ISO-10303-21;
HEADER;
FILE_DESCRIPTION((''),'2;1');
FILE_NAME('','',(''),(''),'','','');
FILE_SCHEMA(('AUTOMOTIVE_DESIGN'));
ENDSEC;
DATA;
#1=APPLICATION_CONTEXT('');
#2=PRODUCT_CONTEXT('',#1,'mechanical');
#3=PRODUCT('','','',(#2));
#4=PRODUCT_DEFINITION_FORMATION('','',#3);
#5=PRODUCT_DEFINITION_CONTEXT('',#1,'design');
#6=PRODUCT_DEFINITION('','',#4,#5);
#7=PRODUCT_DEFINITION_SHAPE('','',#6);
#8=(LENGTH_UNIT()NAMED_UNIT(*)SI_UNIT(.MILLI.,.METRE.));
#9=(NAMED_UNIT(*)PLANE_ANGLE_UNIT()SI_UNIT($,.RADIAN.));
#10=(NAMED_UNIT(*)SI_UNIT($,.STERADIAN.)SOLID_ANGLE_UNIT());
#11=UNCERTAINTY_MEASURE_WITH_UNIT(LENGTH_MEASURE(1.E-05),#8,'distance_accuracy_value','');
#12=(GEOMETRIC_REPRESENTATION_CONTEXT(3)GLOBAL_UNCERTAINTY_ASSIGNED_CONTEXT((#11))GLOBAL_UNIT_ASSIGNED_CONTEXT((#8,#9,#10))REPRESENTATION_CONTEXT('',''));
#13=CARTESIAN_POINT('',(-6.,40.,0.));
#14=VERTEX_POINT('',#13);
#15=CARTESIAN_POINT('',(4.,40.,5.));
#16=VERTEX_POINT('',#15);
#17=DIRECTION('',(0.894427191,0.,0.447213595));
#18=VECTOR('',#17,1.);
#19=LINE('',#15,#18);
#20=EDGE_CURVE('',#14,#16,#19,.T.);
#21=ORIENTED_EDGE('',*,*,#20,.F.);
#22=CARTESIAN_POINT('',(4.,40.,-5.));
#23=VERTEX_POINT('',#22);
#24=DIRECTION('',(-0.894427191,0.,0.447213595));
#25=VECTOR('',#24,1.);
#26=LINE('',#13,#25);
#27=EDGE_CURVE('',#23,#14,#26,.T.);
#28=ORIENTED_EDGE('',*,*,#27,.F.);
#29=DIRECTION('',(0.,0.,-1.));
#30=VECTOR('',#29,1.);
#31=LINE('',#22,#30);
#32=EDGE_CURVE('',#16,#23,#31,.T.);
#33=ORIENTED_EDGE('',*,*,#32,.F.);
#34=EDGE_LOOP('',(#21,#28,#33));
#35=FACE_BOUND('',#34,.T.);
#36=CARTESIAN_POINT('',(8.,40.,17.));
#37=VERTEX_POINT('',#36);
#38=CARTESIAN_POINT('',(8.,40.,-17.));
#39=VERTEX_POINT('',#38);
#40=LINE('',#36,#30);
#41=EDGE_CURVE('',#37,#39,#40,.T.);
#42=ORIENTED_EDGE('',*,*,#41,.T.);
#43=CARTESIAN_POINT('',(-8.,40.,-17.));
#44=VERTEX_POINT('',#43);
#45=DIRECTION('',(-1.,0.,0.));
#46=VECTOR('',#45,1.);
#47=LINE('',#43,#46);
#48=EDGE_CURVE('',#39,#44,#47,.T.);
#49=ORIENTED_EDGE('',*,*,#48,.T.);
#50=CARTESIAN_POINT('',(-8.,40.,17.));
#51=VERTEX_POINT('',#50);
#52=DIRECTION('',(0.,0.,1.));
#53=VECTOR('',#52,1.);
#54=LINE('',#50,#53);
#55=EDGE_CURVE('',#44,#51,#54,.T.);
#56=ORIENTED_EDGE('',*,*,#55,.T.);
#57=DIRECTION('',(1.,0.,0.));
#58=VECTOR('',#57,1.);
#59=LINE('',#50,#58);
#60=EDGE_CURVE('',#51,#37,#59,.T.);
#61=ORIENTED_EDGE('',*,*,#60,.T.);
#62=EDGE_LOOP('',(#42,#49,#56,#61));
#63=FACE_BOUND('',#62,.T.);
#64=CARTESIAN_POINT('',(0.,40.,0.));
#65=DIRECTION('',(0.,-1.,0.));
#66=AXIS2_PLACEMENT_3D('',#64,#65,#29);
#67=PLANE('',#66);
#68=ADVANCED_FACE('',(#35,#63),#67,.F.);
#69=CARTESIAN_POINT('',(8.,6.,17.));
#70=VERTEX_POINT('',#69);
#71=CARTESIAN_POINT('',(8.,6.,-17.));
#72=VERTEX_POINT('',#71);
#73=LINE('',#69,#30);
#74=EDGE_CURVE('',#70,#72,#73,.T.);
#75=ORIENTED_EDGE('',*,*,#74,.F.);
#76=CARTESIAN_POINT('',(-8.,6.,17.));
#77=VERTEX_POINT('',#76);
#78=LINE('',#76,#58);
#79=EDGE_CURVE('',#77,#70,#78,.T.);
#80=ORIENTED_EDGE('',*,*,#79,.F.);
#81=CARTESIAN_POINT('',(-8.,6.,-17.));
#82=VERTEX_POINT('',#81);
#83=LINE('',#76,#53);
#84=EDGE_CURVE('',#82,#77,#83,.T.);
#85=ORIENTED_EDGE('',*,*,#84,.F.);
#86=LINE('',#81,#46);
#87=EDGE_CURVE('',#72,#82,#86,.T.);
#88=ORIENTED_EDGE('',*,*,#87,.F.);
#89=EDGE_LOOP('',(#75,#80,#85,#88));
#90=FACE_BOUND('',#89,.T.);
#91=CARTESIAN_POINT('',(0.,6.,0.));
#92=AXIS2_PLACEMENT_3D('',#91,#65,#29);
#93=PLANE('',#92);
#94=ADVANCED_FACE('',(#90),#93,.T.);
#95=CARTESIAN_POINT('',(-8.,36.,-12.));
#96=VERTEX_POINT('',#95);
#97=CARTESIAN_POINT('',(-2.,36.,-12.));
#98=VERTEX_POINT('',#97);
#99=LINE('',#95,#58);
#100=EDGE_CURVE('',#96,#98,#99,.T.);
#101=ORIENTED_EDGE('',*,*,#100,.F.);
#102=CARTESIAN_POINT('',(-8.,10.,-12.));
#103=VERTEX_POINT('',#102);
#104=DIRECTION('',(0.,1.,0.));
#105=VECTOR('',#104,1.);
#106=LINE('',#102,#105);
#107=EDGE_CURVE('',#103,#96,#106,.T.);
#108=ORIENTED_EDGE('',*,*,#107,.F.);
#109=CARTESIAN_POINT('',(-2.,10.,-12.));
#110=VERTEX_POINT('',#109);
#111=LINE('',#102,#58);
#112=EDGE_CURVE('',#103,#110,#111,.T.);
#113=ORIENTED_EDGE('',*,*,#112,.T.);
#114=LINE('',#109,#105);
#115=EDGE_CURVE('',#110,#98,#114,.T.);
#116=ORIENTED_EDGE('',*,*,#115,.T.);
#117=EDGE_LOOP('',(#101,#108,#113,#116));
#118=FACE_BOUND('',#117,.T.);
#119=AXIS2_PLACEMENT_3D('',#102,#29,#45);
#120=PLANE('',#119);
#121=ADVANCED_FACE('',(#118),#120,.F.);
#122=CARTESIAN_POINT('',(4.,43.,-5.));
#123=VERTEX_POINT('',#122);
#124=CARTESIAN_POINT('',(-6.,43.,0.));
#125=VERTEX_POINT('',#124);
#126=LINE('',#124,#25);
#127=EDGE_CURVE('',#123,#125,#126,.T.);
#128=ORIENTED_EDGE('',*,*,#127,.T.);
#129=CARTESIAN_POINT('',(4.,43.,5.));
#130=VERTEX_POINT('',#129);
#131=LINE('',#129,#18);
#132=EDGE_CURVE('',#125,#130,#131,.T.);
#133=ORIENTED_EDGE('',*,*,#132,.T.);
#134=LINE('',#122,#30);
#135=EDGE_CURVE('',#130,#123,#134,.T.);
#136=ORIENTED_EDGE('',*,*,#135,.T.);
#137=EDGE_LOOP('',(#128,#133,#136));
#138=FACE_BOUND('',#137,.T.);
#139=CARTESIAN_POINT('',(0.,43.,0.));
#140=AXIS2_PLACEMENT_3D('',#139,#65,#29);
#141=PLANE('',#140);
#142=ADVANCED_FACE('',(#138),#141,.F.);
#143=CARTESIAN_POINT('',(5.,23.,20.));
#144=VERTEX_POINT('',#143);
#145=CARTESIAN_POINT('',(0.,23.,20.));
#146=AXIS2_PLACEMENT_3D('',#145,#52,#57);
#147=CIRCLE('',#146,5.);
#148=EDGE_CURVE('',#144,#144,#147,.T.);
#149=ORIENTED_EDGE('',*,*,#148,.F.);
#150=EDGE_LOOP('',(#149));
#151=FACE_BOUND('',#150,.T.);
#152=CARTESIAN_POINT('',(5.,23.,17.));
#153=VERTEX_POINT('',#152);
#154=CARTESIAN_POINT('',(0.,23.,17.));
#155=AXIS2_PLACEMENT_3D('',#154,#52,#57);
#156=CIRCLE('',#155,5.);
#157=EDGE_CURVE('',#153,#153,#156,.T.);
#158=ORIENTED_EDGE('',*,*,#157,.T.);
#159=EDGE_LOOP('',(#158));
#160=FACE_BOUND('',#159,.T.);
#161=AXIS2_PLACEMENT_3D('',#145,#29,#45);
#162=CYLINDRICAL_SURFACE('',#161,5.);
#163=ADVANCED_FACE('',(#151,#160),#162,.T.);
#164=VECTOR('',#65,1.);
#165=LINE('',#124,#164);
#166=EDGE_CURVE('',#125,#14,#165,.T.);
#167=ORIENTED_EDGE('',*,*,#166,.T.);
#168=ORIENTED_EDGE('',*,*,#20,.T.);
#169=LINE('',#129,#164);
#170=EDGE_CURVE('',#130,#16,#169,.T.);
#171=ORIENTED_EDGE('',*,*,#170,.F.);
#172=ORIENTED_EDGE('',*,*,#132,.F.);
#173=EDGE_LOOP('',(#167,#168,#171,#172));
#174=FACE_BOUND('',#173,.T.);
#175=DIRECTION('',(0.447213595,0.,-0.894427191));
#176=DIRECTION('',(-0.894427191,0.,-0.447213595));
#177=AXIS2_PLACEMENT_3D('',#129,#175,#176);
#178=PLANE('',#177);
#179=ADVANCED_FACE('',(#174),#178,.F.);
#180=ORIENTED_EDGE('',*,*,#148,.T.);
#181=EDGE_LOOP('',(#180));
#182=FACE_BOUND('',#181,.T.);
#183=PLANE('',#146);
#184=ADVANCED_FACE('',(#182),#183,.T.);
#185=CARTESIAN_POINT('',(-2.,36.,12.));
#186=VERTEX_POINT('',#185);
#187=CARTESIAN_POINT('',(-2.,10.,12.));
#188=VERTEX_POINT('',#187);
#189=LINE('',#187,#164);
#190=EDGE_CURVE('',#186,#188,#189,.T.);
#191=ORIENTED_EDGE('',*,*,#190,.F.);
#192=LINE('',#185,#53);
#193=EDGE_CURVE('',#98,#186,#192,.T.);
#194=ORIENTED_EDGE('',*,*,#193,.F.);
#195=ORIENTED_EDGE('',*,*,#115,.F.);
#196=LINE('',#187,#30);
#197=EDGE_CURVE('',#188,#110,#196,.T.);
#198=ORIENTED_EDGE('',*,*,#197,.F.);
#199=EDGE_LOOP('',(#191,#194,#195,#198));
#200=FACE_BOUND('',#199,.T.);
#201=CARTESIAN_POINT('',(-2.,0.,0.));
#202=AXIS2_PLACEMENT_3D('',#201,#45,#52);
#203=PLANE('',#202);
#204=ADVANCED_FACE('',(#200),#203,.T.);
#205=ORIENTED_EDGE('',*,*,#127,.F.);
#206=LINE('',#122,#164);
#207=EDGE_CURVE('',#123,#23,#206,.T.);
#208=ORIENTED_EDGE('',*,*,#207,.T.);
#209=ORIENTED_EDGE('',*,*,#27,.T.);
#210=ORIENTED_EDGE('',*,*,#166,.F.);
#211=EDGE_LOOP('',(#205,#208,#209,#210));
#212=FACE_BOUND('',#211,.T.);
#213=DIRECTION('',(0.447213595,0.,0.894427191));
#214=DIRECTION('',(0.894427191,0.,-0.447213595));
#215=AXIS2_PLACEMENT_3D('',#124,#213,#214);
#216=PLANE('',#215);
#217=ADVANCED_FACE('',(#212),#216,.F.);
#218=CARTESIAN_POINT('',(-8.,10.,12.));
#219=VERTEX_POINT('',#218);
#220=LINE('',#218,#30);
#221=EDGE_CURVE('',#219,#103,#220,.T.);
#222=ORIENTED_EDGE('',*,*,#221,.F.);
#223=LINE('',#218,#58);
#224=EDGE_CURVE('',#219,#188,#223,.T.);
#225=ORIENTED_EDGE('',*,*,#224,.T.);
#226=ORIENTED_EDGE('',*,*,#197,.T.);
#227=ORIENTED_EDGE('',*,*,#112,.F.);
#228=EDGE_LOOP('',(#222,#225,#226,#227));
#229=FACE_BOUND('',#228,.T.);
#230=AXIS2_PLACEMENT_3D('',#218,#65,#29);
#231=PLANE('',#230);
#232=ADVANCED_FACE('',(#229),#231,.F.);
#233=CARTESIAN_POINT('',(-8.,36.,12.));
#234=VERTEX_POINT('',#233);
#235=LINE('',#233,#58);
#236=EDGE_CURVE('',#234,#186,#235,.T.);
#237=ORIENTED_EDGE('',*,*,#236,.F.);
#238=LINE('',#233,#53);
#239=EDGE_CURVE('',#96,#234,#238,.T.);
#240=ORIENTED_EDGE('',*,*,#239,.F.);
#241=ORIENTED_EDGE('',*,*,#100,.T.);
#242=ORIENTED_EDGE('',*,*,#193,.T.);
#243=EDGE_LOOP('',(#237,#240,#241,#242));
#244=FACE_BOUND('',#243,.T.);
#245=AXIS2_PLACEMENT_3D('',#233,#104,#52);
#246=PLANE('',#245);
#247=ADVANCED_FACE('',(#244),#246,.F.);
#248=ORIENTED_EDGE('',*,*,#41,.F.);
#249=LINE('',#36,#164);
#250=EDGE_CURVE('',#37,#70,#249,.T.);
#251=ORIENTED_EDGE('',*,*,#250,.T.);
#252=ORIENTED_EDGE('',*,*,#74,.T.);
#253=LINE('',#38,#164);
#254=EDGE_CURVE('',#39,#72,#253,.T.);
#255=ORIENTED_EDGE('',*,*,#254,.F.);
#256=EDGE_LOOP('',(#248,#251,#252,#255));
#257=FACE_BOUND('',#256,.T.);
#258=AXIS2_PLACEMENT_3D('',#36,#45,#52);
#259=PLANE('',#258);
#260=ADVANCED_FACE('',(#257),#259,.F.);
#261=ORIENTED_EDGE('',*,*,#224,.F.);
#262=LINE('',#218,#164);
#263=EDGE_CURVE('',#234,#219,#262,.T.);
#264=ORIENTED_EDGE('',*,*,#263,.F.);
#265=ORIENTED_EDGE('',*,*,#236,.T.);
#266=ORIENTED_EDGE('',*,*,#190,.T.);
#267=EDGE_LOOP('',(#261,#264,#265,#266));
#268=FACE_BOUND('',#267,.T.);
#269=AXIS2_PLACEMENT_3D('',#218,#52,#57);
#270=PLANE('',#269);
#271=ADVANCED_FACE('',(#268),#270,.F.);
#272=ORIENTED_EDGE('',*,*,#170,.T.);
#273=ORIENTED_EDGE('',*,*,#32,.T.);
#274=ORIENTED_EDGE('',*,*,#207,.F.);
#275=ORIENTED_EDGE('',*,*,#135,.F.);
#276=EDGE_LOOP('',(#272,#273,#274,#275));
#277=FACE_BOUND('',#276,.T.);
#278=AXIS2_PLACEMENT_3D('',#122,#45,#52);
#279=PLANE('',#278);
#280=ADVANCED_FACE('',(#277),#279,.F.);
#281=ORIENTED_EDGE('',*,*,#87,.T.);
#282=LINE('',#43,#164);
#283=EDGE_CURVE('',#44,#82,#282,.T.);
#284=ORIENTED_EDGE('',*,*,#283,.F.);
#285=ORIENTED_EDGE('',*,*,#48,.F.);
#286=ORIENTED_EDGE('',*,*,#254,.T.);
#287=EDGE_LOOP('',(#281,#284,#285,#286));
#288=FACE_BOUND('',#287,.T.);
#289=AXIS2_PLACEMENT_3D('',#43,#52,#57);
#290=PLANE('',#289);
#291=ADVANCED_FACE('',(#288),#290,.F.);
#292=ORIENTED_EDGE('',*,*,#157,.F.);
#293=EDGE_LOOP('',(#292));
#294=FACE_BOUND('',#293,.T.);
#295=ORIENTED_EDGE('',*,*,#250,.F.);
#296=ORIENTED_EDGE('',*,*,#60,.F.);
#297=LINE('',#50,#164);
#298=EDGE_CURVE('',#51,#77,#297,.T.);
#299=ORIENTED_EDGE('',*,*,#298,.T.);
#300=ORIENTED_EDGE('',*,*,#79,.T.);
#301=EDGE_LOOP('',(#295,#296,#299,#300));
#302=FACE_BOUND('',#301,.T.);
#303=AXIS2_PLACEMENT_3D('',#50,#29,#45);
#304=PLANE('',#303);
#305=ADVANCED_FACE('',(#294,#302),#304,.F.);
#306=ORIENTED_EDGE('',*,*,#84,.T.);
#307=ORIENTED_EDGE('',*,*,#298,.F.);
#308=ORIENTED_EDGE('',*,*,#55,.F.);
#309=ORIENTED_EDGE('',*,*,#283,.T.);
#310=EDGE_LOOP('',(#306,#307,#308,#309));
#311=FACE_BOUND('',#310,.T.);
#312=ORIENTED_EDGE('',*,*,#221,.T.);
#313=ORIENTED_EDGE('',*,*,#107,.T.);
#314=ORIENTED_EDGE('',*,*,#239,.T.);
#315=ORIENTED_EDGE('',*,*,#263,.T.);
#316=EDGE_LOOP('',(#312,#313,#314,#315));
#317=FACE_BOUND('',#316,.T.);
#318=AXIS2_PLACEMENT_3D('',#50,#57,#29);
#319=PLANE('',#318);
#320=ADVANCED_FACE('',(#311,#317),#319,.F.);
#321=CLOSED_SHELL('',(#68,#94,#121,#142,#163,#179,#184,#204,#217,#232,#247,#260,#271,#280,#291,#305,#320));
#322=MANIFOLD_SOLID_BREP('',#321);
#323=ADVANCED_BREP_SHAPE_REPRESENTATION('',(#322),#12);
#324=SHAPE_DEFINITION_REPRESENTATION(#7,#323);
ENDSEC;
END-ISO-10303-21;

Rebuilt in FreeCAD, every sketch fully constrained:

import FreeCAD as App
import Part
import Sketcher

V = App.Vector
Q = App.Units.Quantity

doc = App.newDocument("Part")
params = doc.addObject("Spreadsheet::Sheet", "Params")
for row, (alias, value) in enumerate([
    ("sketch1_width", "16 mm"),
    ("sketch1_height", "34 mm"),
    ("pad1_length", "34 mm"),
    ("sketch2_width", "26 mm"),
    ("sketch2_height", "24 mm"),
    ("pocket1_length", "6 mm"),
    ("sketch3_diameter", "10 mm"),
    ("pad2_length", "3 mm"),
    ("sketch4_height", "10 mm"),
    ("pad3_length", "3 mm"),
], start=1):
    params.set(f"A{row}", alias)
    params.set(f"B{row}", "=" + value)
    params.setAlias(f"B{row}", alias)

body = doc.addObject("PartDesign::Body", "Body")

# Sketch on XZ plane
sketch1 = body.newObject("Sketcher::SketchObject", "Sketch")
sketch1.AttachmentSupport = (doc.getObject("XZ_Plane"), [""])
sketch1.MapMode = "FlatFace"
sketch1.AttachmentOffset = App.Placement(V(0, 0, -23), App.Rotation())
sketch1.addGeometry([
    Part.LineSegment(V(-8, -17, 0), V(-8, 17, 0)),
    Part.LineSegment(V(-8, 17, 0), V(8, 17, 0)),
    Part.LineSegment(V(8, 17, 0), V(8, -17, 0)),
    Part.LineSegment(V(8, -17, 0), V(-8, -17, 0)),
], False)
sketch1.addConstraint([
    Sketcher.Constraint("Coincident", 0, 2, 1, 1),
    Sketcher.Constraint("Coincident", 1, 2, 2, 1),
    Sketcher.Constraint("Coincident", 2, 2, 3, 1),
    Sketcher.Constraint("Coincident", 3, 2, 0, 1),
    Sketcher.Constraint("Vertical", 0),
    Sketcher.Constraint("Horizontal", 1),
    Sketcher.Constraint("Vertical", 2),
    Sketcher.Constraint("Horizontal", 3),
    Sketcher.Constraint("Symmetric", 0, 2, 2, 2, -1, 1),
    Sketcher.Constraint("DistanceX", 1, 1, 1, 2, Q("16 mm")),
    Sketcher.Constraint("DistanceY", 0, 1, 0, 2, Q("34 mm")),
])
sketch1.setExpression("Constraints[9]", "Params.sketch1_width")
sketch1.setExpression("Constraints[10]", "Params.sketch1_height")
pad1 = body.newObject("PartDesign::Pad", "Pad")
pad1.Profile = sketch1
pad1.setExpression("Length", "Params.pad1_length")
pad1.Midplane = True

# Sketch on YZ plane
sketch2 = body.newObject("Sketcher::SketchObject", "Sketch001")
sketch2.AttachmentSupport = (doc.getObject("YZ_Plane"), [""])
sketch2.MapMode = "FlatFace"
sketch2.AttachmentOffset = App.Placement(V(0, 0, -5), App.Rotation())
sketch2.addGeometry([
    Part.LineSegment(V(36, 12, 0), V(10, 12, 0)),
    Part.LineSegment(V(10, 12, 0), V(10, -12, 0)),
    Part.LineSegment(V(10, -12, 0), V(36, -12, 0)),
    Part.LineSegment(V(36, -12, 0), V(36, 12, 0)),
], False)
sketch2.addConstraint([
    Sketcher.Constraint("Coincident", 0, 2, 1, 1),
    Sketcher.Constraint("Coincident", 1, 2, 2, 1),
    Sketcher.Constraint("Coincident", 2, 2, 3, 1),
    Sketcher.Constraint("Coincident", 3, 2, 0, 1),
    Sketcher.Constraint("Horizontal", 0),
    Sketcher.Constraint("Vertical", 1),
    Sketcher.Constraint("Horizontal", 2),
    Sketcher.Constraint("Vertical", 3),
    Sketcher.Constraint("DistanceX", 0, 2, 0, 1, Q("26 mm")),
    Sketcher.Constraint("DistanceY", 1, 2, 1, 1, Q("24 mm")),
    Sketcher.Constraint("DistanceX", -1, 1, 0, 2, Q("10 mm")),
    Sketcher.Constraint("DistanceY", -1, 1, 0, 2, Q("12 mm")),
])
sketch2.setExpression("Constraints[8]", "Params.sketch2_width")
sketch2.setExpression("Constraints[9]", "Params.sketch2_height")
pocket1 = body.newObject("PartDesign::Pocket", "Pocket")
pocket1.Profile = sketch2
pocket1.setExpression("Length", "Params.pocket1_length")
pocket1.Midplane = True

# Sketch on XY plane
sketch3 = body.newObject("Sketcher::SketchObject", "Sketch002")
sketch3.AttachmentSupport = (doc.getObject("XY_Plane"), [""])
sketch3.MapMode = "FlatFace"
sketch3.AttachmentOffset = App.Placement(V(0, 0, 18.5), App.Rotation())
sketch3.addGeometry(Part.Circle(V(0, 23, 0), V(0, 0, 1), 5), False)
sketch3.addConstraint([
    Sketcher.Constraint("PointOnObject", 0, 3, -2),
    Sketcher.Constraint("Diameter", 0, Q("10 mm")),
    Sketcher.Constraint("DistanceY", -1, 1, 0, 3, Q("23 mm")),
])
sketch3.setExpression("Constraints[1]", "Params.sketch3_diameter")
pad2 = body.newObject("PartDesign::Pad", "Pad001")
pad2.Profile = sketch3
pad2.setExpression("Length", "Params.pad2_length")
pad2.Midplane = True

# Sketch on XZ plane
sketch4 = body.newObject("Sketcher::SketchObject", "Sketch003")
sketch4.AttachmentSupport = (doc.getObject("XZ_Plane"), [""])
sketch4.MapMode = "FlatFace"
sketch4.AttachmentOffset = App.Placement(V(0, 0, -41.5), App.Rotation())
sketch4.addGeometry([
    Part.LineSegment(V(4, 5, 0), V(4, -5, 0)),
    Part.LineSegment(V(4, -5, 0), V(-6, 0, 0)),
    Part.LineSegment(V(-6, 0, 0), V(4, 5, 0)),
], False)
sketch4.addConstraint([
    Sketcher.Constraint("Coincident", 0, 2, 1, 1),
    Sketcher.Constraint("Coincident", 1, 2, 2, 1),
    Sketcher.Constraint("Coincident", 2, 2, 0, 1),
    Sketcher.Constraint("Vertical", 0),
    Sketcher.Constraint("PointOnObject", 1, 2, -1),
    Sketcher.Constraint("Equal", 1, 2),
    Sketcher.Constraint("DistanceY", 0, 2, 0, 1, Q("10 mm")),
    Sketcher.Constraint("DistanceX", -1, 1, 0, 2, Q("4 mm")),
    Sketcher.Constraint("DistanceX", 1, 2, -1, 1, Q("6 mm")),
])
sketch4.setExpression("Constraints[6]", "Params.sketch4_height")
pad3 = body.newObject("PartDesign::Pad", "Pad002")
pad3.Profile = sketch4
pad3.setExpression("Length", "Params.pad3_length")
pad3.Midplane = True

doc.recompute()
